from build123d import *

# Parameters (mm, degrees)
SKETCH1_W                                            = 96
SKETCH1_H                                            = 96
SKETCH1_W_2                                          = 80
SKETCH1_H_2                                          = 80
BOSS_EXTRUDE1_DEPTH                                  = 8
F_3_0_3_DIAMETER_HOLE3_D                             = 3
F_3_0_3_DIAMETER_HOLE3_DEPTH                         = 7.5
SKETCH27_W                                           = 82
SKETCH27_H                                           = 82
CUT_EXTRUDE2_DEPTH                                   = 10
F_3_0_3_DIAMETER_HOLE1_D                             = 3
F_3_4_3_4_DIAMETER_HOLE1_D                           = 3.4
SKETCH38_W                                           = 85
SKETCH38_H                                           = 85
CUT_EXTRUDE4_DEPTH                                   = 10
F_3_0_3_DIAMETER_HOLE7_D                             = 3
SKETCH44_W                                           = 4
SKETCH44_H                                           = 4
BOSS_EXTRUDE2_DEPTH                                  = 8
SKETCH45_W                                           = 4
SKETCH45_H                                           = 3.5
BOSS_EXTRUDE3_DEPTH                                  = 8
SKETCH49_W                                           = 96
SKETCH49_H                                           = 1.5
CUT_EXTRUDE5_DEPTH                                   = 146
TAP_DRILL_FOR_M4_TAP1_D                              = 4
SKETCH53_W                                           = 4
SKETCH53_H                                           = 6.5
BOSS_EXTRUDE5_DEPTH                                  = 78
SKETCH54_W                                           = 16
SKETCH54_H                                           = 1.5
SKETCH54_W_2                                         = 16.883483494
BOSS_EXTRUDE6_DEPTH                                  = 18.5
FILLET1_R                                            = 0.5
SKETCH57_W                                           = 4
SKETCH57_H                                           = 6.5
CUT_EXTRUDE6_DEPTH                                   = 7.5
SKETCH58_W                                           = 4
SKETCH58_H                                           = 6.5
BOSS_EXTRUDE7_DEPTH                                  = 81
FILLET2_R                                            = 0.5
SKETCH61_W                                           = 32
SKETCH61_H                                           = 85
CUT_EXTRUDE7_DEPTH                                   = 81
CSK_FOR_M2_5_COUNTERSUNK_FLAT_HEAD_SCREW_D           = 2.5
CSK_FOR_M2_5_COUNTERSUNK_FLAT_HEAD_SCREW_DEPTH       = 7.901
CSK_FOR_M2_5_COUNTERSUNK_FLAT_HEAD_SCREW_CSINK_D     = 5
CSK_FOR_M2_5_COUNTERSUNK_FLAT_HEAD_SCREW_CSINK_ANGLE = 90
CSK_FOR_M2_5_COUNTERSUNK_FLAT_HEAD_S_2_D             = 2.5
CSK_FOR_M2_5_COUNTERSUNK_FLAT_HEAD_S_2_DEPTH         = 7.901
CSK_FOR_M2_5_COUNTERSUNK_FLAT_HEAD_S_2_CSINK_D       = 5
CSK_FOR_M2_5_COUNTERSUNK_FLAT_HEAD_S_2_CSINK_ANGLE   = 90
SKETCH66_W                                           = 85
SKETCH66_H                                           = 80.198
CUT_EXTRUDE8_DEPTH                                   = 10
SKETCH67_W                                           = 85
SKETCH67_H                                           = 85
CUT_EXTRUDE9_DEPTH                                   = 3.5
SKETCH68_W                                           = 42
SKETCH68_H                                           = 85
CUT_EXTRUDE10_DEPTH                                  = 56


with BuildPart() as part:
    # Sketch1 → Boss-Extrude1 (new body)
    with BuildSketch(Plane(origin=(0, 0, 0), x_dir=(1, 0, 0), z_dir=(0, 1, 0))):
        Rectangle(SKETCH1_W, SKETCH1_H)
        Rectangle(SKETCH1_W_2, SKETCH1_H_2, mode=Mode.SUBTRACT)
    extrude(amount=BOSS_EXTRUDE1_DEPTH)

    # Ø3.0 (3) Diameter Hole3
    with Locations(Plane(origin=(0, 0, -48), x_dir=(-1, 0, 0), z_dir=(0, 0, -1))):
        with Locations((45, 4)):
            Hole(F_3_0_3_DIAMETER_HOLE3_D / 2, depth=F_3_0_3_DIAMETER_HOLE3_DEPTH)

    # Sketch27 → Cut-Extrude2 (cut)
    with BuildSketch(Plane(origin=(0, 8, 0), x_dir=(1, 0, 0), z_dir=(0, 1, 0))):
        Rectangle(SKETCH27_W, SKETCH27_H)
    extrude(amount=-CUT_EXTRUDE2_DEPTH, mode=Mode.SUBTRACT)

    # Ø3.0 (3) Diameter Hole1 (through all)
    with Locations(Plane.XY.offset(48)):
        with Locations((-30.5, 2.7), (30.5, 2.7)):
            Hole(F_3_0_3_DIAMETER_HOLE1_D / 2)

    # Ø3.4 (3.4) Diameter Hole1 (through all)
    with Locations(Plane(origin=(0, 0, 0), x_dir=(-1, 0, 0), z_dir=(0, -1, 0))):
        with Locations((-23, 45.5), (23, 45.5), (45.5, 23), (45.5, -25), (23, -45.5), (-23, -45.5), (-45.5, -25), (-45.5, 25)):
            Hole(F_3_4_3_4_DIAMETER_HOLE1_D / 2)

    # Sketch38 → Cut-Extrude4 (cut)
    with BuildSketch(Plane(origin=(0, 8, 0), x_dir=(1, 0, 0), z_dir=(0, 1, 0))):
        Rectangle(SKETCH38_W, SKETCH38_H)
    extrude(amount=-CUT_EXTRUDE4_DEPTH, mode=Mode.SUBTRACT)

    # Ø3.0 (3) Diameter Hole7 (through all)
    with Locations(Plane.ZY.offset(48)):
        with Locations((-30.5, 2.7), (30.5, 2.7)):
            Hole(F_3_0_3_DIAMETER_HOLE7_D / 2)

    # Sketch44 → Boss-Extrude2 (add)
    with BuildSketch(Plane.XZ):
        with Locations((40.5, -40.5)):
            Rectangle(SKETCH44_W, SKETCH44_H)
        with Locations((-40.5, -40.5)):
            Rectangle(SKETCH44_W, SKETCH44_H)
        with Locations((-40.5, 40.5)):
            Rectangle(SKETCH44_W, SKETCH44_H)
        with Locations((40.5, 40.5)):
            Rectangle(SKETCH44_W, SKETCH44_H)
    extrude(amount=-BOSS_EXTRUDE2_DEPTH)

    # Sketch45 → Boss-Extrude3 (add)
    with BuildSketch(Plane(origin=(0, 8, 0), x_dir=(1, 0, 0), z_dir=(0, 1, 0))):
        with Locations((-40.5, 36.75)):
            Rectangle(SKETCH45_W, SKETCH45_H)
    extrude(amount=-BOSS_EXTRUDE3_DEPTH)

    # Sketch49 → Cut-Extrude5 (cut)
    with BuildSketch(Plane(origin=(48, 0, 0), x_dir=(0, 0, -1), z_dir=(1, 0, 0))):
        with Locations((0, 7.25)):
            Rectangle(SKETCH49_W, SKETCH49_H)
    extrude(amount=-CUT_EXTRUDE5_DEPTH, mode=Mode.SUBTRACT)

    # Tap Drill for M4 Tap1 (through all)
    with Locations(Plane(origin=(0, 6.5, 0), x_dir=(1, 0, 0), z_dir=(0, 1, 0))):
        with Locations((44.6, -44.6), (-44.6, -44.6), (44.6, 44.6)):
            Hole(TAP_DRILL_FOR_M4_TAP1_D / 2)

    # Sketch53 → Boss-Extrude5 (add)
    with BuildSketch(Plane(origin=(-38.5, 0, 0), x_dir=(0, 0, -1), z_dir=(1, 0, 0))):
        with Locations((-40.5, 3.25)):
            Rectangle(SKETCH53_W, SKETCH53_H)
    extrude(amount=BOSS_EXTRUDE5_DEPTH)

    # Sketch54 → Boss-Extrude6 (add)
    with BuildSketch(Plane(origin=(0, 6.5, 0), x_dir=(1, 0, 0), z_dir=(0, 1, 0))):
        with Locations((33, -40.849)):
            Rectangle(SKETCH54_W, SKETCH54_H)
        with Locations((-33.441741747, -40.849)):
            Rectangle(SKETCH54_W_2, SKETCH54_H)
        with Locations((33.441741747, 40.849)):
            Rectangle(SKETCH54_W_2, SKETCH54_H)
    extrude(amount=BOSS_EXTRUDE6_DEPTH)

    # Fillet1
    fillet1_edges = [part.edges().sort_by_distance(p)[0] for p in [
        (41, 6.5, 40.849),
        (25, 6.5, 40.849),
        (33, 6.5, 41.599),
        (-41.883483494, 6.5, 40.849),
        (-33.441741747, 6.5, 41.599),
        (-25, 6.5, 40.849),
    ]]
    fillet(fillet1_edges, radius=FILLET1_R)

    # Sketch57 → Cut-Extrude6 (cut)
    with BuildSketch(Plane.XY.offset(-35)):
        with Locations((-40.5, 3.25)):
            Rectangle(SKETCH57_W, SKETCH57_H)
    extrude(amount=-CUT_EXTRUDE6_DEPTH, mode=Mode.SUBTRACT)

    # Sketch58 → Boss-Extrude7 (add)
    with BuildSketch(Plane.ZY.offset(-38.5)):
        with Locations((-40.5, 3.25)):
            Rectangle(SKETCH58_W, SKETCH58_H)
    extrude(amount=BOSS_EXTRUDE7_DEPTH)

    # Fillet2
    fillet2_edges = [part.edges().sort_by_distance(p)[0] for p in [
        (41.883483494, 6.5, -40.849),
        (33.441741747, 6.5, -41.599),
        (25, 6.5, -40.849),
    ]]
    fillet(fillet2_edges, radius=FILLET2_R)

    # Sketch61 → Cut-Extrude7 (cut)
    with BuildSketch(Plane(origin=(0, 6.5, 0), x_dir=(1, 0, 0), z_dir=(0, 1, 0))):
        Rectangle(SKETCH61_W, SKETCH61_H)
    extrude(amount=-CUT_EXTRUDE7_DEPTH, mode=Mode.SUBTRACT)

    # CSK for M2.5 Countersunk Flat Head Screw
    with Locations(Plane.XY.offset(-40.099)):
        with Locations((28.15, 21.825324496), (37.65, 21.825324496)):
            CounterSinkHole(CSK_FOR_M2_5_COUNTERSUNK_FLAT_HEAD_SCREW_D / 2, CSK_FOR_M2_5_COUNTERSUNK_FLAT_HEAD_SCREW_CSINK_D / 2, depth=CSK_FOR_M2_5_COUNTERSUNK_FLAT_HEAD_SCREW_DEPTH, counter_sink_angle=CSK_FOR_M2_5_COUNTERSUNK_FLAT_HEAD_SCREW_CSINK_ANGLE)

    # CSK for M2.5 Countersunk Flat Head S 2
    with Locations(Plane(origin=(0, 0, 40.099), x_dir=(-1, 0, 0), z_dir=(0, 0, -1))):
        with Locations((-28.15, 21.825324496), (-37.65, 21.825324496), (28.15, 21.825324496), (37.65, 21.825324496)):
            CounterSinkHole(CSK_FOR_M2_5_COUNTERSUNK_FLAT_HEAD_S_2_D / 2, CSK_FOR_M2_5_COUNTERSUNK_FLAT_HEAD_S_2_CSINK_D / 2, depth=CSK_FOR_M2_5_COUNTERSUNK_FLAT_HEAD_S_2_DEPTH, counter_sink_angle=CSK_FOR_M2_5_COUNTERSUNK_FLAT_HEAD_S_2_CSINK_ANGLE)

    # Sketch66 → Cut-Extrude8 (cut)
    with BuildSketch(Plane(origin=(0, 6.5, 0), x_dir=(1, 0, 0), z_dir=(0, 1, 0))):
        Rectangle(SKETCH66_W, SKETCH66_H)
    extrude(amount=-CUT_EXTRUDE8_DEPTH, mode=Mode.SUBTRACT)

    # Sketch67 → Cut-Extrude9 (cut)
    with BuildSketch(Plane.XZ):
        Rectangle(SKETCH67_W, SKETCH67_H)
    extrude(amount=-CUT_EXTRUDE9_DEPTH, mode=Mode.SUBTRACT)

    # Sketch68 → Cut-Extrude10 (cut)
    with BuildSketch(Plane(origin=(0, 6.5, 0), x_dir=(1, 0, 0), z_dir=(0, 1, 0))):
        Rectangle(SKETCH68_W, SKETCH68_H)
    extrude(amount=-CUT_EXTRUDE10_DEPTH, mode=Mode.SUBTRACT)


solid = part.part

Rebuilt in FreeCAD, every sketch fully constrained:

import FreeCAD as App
import Part
import Sketcher

V = App.Vector


def edges_at(feature, points):
    """Names of the edges that pass closest to the given points."""
    edges = feature.Shape.Edges
    near = lambda p: min(range(len(edges)), key=lambda i: edges[i].distToShape(Part.Vertex(*p))[0])
    return sorted({f"Edge{near(p) + 1}" for p in points})

doc = App.newDocument("Part")
params = doc.addObject("Spreadsheet::Sheet", "Params")
for row, (alias, value) in enumerate([
    ("sketch1_width", "96 mm"),
    ("sketch1_width2", "80 mm"),
    ("pad1_length", "8 mm"),
    ("sketch2_diameter", "3 mm"),
    ("hole_diameter", "3 mm"),
    ("hole_depth", "7.5 mm"),
    ("sketch3_width", "82 mm"),
    ("pocket1_length", "10 mm"),
    ("sketch4_diameter", "3 mm"),
    ("hole2_diameter", "3 mm"),
    ("sketch5_diameter", "3.4 mm"),
    ("hole3_diameter", "3.4 mm"),
    ("sketch6_width", "85 mm"),
    ("pocket2_length", "10 mm"),
    ("sketch7_diameter", "3 mm"),
    ("hole4_diameter", "3 mm"),
    ("sketch8_width", "4 mm"),
    ("pad2_length", "8 mm"),
    ("sketch9_width", "4 mm"),
    ("sketch9_height", "3.5 mm"),
    ("pad3_length", "8 mm"),
    ("sketch10_height", "96 mm"),
    ("sketch10_width", "1.5 mm"),
    ("pocket3_length", "146 mm"),
    ("sketch11_diameter", "4 mm"),
    ("hole5_diameter", "4 mm"),
    ("sketch12_height", "4 mm"),
    ("sketch12_width", "6.5 mm"),
    ("pad4_length", "78 mm"),
    ("sketch13_width", "16 mm"),
    ("sketch13_height", "1.5 mm"),
    ("pad5_length", "18.5 mm"),
    ("fillet_radius", "0.5 mm"),
    ("sketch14_width", "4 mm"),
    ("sketch14_height", "6.5 mm"),
    ("pocket4_length", "7.5 mm"),
    ("sketch15_height", "4 mm"),
    ("sketch15_width", "6.5 mm"),
    ("pad6_length", "81 mm"),
    ("fillet2_radius", "0.5 mm"),
    ("sketch16_width", "32 mm"),
    ("sketch16_height", "85 mm"),
    ("pocket5_length", "81 mm"),
    ("sketch17_diameter", "2.5 mm"),
    ("hole6_diameter", "2.5 mm"),
    ("hole6_depth", "7.901 mm"),
    ("hole6_csink_diameter", "5 mm"),
    ("sketch18_diameter", "2.5 mm"),
    ("hole7_diameter", "2.5 mm"),
    ("hole7_depth", "7.901 mm"),
    ("hole7_csink_diameter", "5 mm"),
    ("sketch19_width", "85 mm"),
    ("pocket6_length", "10 mm"),
    ("sketch20_width", "85 mm"),
    ("pocket7_length", "3.5 mm"),
    ("sketch21_width", "42 mm"),
    ("sketch21_height", "85 mm"),
    ("pocket8_length", "56 mm"),
], start=1):
    params.set(f"A{row}", alias)
    params.set(f"B{row}", "=" + value)
    params.setAlias(f"B{row}", alias)

body = doc.addObject("PartDesign::Body", "Body")

sketch1 = body.newObject("Sketcher::SketchObject", "Sketch")
sketch1.AttachmentSupport = (doc.getObject("XZ_Plane"), [""])
sketch1.MapMode = "FlatFace"
sketch1.addGeometry([
    Part.LineSegment(V(-48, -48, 0), V(-48, 48, 0)),
    Part.LineSegment(V(-48, 48, 0), V(48, 48, 0)),
    Part.LineSegment(V(48, 48, 0), V(48, -48, 0)),
    Part.LineSegment(V(48, -48, 0), V(-48, -48, 0)),
    Part.LineSegment(V(40, 40, 0), V(-40, 40, 0)),
    Part.LineSegment(V(-40, 40, 0), V(-40, -40, 0)),
    Part.LineSegment(V(-40, -40, 0), V(40, -40, 0)),
    Part.LineSegment(V(40, -40, 0), V(40, 40, 0)),
], False)
sketch1.addConstraint([
    Sketcher.Constraint("Coincident", 0, 2, 1, 1),
    Sketcher.Constraint("Coincident", 1, 2, 2, 1),
    Sketcher.Constraint("Coincident", 2, 2, 3, 1),
    Sketcher.Constraint("Coincident", 3, 2, 0, 1),
    Sketcher.Constraint("Coincident", 4, 2, 5, 1),
    Sketcher.Constraint("Coincident", 5, 2, 6, 1),
    Sketcher.Constraint("Coincident", 6, 2, 7, 1),
    Sketcher.Constraint("Coincident", 7, 2, 4, 1),
    Sketcher.Constraint("Vertical", 0),
    Sketcher.Constraint("Horizontal", 1),
    Sketcher.Constraint("Vertical", 2),
    Sketcher.Constraint("Horizontal", 3),
    Sketcher.Constraint("Horizontal", 4),
    Sketcher.Constraint("Vertical", 5),
    Sketcher.Constraint("Horizontal", 6),
    Sketcher.Constraint("Vertical", 7),
    Sketcher.Constraint("Symmetric", 0, 2, 2, 2, -1, 1),
    Sketcher.Constraint("Symmetric", 4, 2, 6, 2, -1, 1),
    Sketcher.Constraint("Equal", 3, 0),
    Sketcher.Constraint("Equal", 6, 5),
    Sketcher.Constraint("DistanceX", 1, 1, 1, 2, 96.0),
    Sketcher.Constraint("DistanceX", 4, 2, 4, 1, 80.0),
])
sketch1.setExpression("Constraints[20]", "Params.sketch1_width")
sketch1.setExpression("Constraints[21]", "Params.sketch1_width2")
pad1 = body.newObject("PartDesign::Pad", "Pad")
pad1.Profile = sketch1
pad1.setExpression("Length", "Params.pad1_length")
pad1.Reversed = True

sketch2 = body.newObject("Sketcher::SketchObject", "Sketch001")
sketch2.AttachmentSupport = (doc.getObject("XY_Plane"), [""])
sketch2.MapMode = "FlatFace"
sketch2.AttachmentOffset = App.Placement(V(0, 0, -48), App.Rotation())
sketch2.addGeometry(Part.Circle(V(-45, 4, 0), V(0, 0, 1), 1.5), False)
sketch2.addConstraint([
    Sketcher.Constraint("Diameter", 0, 3.0),
    Sketcher.Constraint("DistanceX", 0, 3, -1, 1, 45.0),
    Sketcher.Constraint("DistanceY", -1, 1, 0, 3, 4.0),
])
sketch2.setExpression("Constraints[0]", "Params.sketch2_diameter")
doc.recompute()
hole = body.newObject("PartDesign::Hole", "Hole")
hole.Profile = sketch2
hole.ThreadType = "None"
hole.setExpression("Diameter", "Params.hole_diameter")
hole.DepthType = "Dimension"
hole.setExpression("Depth", "Params.hole_depth")
hole.DrillPoint = "Flat"
hole.Reversed = True

sketch3 = body.newObject("Sketcher::SketchObject", "Sketch002")
sketch3.AttachmentSupport = (doc.getObject("XZ_Plane"), [""])
sketch3.MapMode = "FlatFace"
sketch3.AttachmentOffset = App.Placement(V(0, 0, -8), App.Rotation())
sketch3.addGeometry([
    Part.LineSegment(V(-41, -41, 0), V(-41, 41, 0)),
    Part.LineSegment(V(-41, 41, 0), V(41, 41, 0)),
    Part.LineSegment(V(41, 41, 0), V(41, -41, 0)),
    Part.LineSegment(V(41, -41, 0), V(-41, -41, 0)),
], False)
sketch3.addConstraint([
    Sketcher.Constraint("Coincident", 0, 2, 1, 1),
    Sketcher.Constraint("Coincident", 1, 2, 2, 1),
    Sketcher.Constraint("Coincident", 2, 2, 3, 1),
    Sketcher.Constraint("Coincident", 3, 2, 0, 1),
    Sketcher.Constraint("Vertical", 0),
    Sketcher.Constraint("Horizontal", 1),
    Sketcher.Constraint("Vertical", 2),
    Sketcher.Constraint("Horizontal", 3),
    Sketcher.Constraint("Symmetric", 0, 2, 2, 2, -1, 1),
    Sketcher.Constraint("Equal", 3, 0),
    Sketcher.Constraint("DistanceX", 1, 1, 1, 2, 82.0),
])
sketch3.setExpression("Constraints[10]", "Params.sketch3_width")
pocket1 = body.newObject("PartDesign::Pocket", "Pocket")
pocket1.Profile = sketch3
pocket1.setExpression("Length", "Params.pocket1_length")
pocket1.Reversed = True

sketch4 = body.newObject("Sketcher::SketchObject", "Sketch003")
sketch4.AttachmentSupport = (doc.getObject("XY_Plane"), [""])
sketch4.MapMode = "FlatFace"
sketch4.AttachmentOffset = App.Placement(V(0, 0, 48), App.Rotation())
sketch4.addGeometry([
    Part.Circle(V(-30.5, 2.7, 0), V(0, 0, 1), 1.5),
    Part.Circle(V(30.5, 2.7, 0), V(0, 0, 1), 1.5),
], False)
sketch4.addConstraint([
    Sketcher.Constraint("Equal", 0, 1),
    Sketcher.Constraint("Symmetric", 0, 3, 1, 3, -2),
    Sketcher.Constraint("Diameter", 0, 3.0),
    Sketcher.Constraint("DistanceX", 0, 3, 1, 3, 61.0),
    Sketcher.Constraint("DistanceY", -1, 1, 0, 3, 2.7),
])
sketch4.setExpression("Constraints[2]", "Params.sketch4_diameter")
doc.recompute()
hole2 = body.newObject("PartDesign::Hole", "Hole001")
hole2.Profile = sketch4
hole2.ThreadType = "None"
hole2.setExpression("Diameter", "Params.hole2_diameter")
hole2.DepthType = "ThroughAll"

sketch5 = body.newObject("Sketcher::SketchObject", "Sketch004")
sketch5.AttachmentSupport = (doc.getObject("XZ_Plane"), [""])
sketch5.MapMode = "FlatFace"
sketch5.addGeometry([
    Part.Circle(V(23, -45.5, 0), V(0, 0, 1), 1.7),
    Part.Circle(V(-23, -45.5, 0), V(0, 0, 1), 1.7),
    Part.Circle(V(-45.5, -23, 0), V(0, 0, 1), 1.7),
    Part.Circle(V(-45.5, 25, 0), V(0, 0, 1), 1.7),
    Part.Circle(V(-23, 45.5, 0), V(0, 0, 1), 1.7),
    Part.Circle(V(23, 45.5, 0), V(0, 0, 1), 1.7),
    Part.Circle(V(45.5, 25, 0), V(0, 0, 1), 1.7),
    Part.Circle(V(45.5, -25, 0), V(0, 0, 1), 1.7),
], False)
sketch5.addConstraint([
    Sketcher.Constraint("Equal", 0, 1),
    Sketcher.Constraint("Equal", 1, 2),
    Sketcher.Constraint("Equal", 2, 3),
    Sketcher.Constraint("Equal", 3, 4),
    Sketcher.Constraint("Equal", 4, 5),
    Sketcher.Constraint("Equal", 5, 6),
    Sketcher.Constraint("Equal", 6, 7),
    Sketcher.Constraint("Symmetric", 0, 3, 4, 3, -1, 1),
    Sketcher.Constraint("Symmetric", 1, 3, 5, 3, -1, 1),
    Sketcher.Constraint("Symmetric", 3, 3, 7, 3, -1, 1),
    Sketcher.Constraint("Symmetric", 0, 3, 1, 3, -2),
    Sketcher.Constraint("Symmetric", 3, 3, 6, 3, -2),
    Sketcher.Constraint("Vertical", 2, 3, 3, 3),
    Sketcher.Constraint("Diameter", 0, 3.4),
    Sketcher.Constraint("DistanceX", -1, 1, 0, 3, 23.0),
    Sketcher.Constraint("DistanceY", 2, 3, -1, 1, 23.0),
    Sketcher.Constraint("DistanceY", -1, 1, 3, 3, 25.0),
    Sketcher.Constraint("DistanceY", 1, 3, 4, 3, 91.0),
    Sketcher.Constraint("DistanceX", 3, 3, 6, 3, 91.0),
])
sketch5.setExpression("Constraints[13]", "Params.sketch5_diameter")
doc.recompute()
hole3 = body.newObject("PartDesign::Hole", "Hole002")
hole3.Profile = sketch5
hole3.ThreadType = "None"
hole3.setExpression("Diameter", "Params.hole3_diameter")
hole3.DepthType = "ThroughAll"

sketch6 = body.newObject("Sketcher::SketchObject", "Sketch005")
sketch6.AttachmentSupport = (doc.getObject("XZ_Plane"), [""])
sketch6.MapMode = "FlatFace"
sketch6.AttachmentOffset = App.Placement(V(0, 0, -8), App.Rotation())
sketch6.addGeometry([
    Part.LineSegment(V(-42, -42, 0), V(-42, 42, 0)),
    Part.LineSegment(V(-42, 42, 0), V(42, 42, 0)),
    Part.LineSegment(V(42, 42, 0), V(42, -42, 0)),
    Part.LineSegment(V(42, -42, 0), V(-42, -42, 0)),
], False)
sketch6.addConstraint([
    Sketcher.Constraint("Coincident", 0, 2, 1, 1),
    Sketcher.Constraint("Coincident", 1, 2, 2, 1),
    Sketcher.Constraint("Coincident", 2, 2, 3, 1),
    Sketcher.Constraint("Coincident", 3, 2, 0, 1),
    Sketcher.Constraint("Vertical", 0),
    Sketcher.Constraint("Horizontal", 1),
    Sketcher.Constraint("Vertical", 2),
    Sketcher.Constraint("Horizontal", 3),
    Sketcher.Constraint("Symmetric", 0, 2, 2, 2, -1, 1),
    Sketcher.Constraint("Equal", 3, 0),
    Sketcher.Constraint("DistanceX", 1, 1, 1, 2, 85.0),
])
sketch6.setExpression("Constraints[10]", "Params.sketch6_width")
pocket2 = body.newObject("PartDesign::Pocket", "Pocket001")
pocket2.Profile = sketch6
pocket2.setExpression("Length", "Params.pocket2_length")
pocket2.Reversed = True

sketch7 = body.newObject("Sketcher::SketchObject", "Sketch006")
sketch7.AttachmentSupport = (doc.getObject("YZ_Plane"), [""])
sketch7.MapMode = "FlatFace"
sketch7.AttachmentOffset = App.Placement(V(0, 0, -48), App.Rotation())
sketch7.addGeometry([
    Part.Circle(V(2.7, -30.5, 0), V(0, 0, 1), 1.5),
    Part.Circle(V(2.7, 30.5, 0), V(0, 0, 1), 1.5),
], False)
sketch7.addConstraint([
    Sketcher.Constraint("Equal", 0, 1),
    Sketcher.Constraint("Symmetric", 0, 3, 1, 3, -1),
    Sketcher.Constraint("Diameter", 0, 3.0),
    Sketcher.Constraint("DistanceY", 0, 3, 1, 3, 61.0),
    Sketcher.Constraint("DistanceX", -1, 1, 0, 3, 2.7),
])
sketch7.setExpression("Constraints[2]", "Params.sketch7_diameter")
doc.recompute()
hole4 = body.newObject("PartDesign::Hole", "Hole003")
hole4.Profile = sketch7
hole4.ThreadType = "None"
hole4.setExpression("Diameter", "Params.hole4_diameter")
hole4.DepthType = "ThroughAll"
hole4.Reversed = True

sketch8 = body.newObject("Sketcher::SketchObject", "Sketch007")
sketch8.AttachmentSupport = (doc.getObject("XZ_Plane"), [""])
sketch8.MapMode = "FlatFace"
sketch8.addGeometry([
    Part.LineSegment(V(38.5, -38.5, 0), V(38.5, -42.5, 0)),
    Part.LineSegment(V(38.5, -42.5, 0), V(42.5, -42.5, 0)),
    Part.LineSegment(V(42.5, -42.5, 0), V(42.5, -38.5, 0)),
    Part.LineSegment(V(42.5, -38.5, 0), V(38.5, -38.5, 0)),
    Part.LineSegment(V(-42.5, -38.5, 0), V(-42.5, -42.5, 0)),
    Part.LineSegment(V(-42.5, -42.5, 0), V(-38.5, -42.5, 0)),
    Part.LineSegment(V(-38.5, -42.5, 0), V(-38.5, -38.5, 0)),
    Part.LineSegment(V(-38.5, -38.5, 0), V(-42.5, -38.5, 0)),
    Part.LineSegment(V(-42.5, 42.5, 0), V(-42.5, 38.5, 0)),
    Part.LineSegment(V(-42.5, 38.5, 0), V(-38.5, 38.5, 0)),
    Part.LineSegment(V(-38.5, 38.5, 0), V(-38.5, 42.5, 0)),
    Part.LineSegment(V(-38.5, 42.5, 0), V(-42.5, 42.5, 0)),
    Part.LineSegment(V(38.5, 42.5, 0), V(38.5, 38.5, 0)),
    Part.LineSegment(V(38.5, 38.5, 0), V(42.5, 38.5, 0)),
    Part.LineSegment(V(42.5, 38.5, 0), V(42.5, 42.5, 0)),
    Part.LineSegment(V(42.5, 42.5, 0), V(38.5, 42.5, 0)),
], False)
sketch8.addConstraint([
    Sketcher.Constraint("Coincident", 0, 2, 1, 1),
    Sketcher.Constraint("Coincident", 1, 2, 2, 1),
    Sketcher.Constraint("Coincident", 2, 2, 3, 1),
    Sketcher.Constraint("Coincident", 3, 2, 0, 1),
    Sketcher.Constraint("Coincident", 4, 2, 5, 1),
    Sketcher.Constraint("Coincident", 5, 2, 6, 1),
    Sketcher.Constraint("Coincident", 6, 2, 7, 1),
    Sketcher.Constraint("Coincident", 7, 2, 4, 1),
    Sketcher.Constraint("Coincident", 8, 2, 9, 1),
    Sketcher.Constraint("Coincident", 9, 2, 10, 1),
    Sketcher.Constraint("Coincident", 10, 2, 11, 1),
    Sketcher.Constraint("Coincident", 11, 2, 8, 1),
    Sketcher.Constraint("Coincident", 12, 2, 13, 1),
    Sketcher.Constraint("Coincident", 13, 2, 14, 1),
    Sketcher.Constraint("Coincident", 14, 2, 15, 1),
    Sketcher.Constraint("Coincident", 15, 2, 12, 1),
    Sketcher.Constraint("Vertical", 0),
    Sketcher.Constraint("Horizontal", 1),
    Sketcher.Constraint("Vertical", 2),
    Sketcher.Constraint("Horizontal", 3),
    Sketcher.Constraint("Vertical", 4),
    Sketcher.Constraint("Horizontal", 5),
    Sketcher.Constraint("Vertical", 6),
    Sketcher.Constraint("Horizontal", 7),
    Sketcher.Constraint("Vertical", 8),
    Sketcher.Constraint("Horizontal", 9),
    Sketcher.Constraint("Vertical", 10),
    Sketcher.Constraint("Horizontal", 11),
    Sketcher.Constraint("Vertical", 12),
    Sketcher.Constraint("Horizontal", 13),
    Sketcher.Constraint("Vertical", 14),
    Sketcher.Constraint("Horizontal", 15),
    Sketcher.Constraint("Symmetric", 2, 2, 8, 2, -1, 1),
    Sketcher.Constraint("Symmetric", 0, 2, 10, 2, -1, 1),
    Sketcher.Constraint("Symmetric", 6, 2, 12, 2, -1, 1),
    Sketcher.Constraint("Symmetric", 4, 2, 14, 2, -1, 1),
    Sketcher.Constraint("Symmetric", 1, 2, 4, 2, -2),
    Sketcher.Constraint("Symmetric", 3, 2, 6, 2, -2),
    Sketcher.Constraint("Equal", 15, 0),
    Sketcher.Constraint("DistanceX", 1, 1, 1, 2, 4.0),
    Sketcher.Constraint("DistanceX", 4, 2, 0, 2, 81.0),
    Sketcher.Constraint("DistanceY", 7, 2, 8, 2, 77.0),
])
sketch8.setExpression("Constraints[39]", "Params.sketch8_width")
pad2 = body.newObject("PartDesign::Pad", "Pad001")
pad2.Profile = sketch8
pad2.setExpression("Length", "Params.pad2_length")
pad2.Reversed = True

sketch9 = body.newObject("Sketcher::SketchObject", "Sketch008")
sketch9.AttachmentSupport = (doc.getObject("XZ_Plane"), [""])
sketch9.MapMode = "FlatFace"
sketch9.AttachmentOffset = App.Placement(V(0, 0, -8), App.Rotation())
sketch9.addGeometry([
    Part.LineSegment(V(-42.5, -38.5, 0), V(-42.5, -35, 0)),
    Part.LineSegment(V(-42.5, -35, 0), V(-38.5, -35, 0)),
    Part.LineSegment(V(-38.5, -35, 0), V(-38.5, -38.5, 0)),
    Part.LineSegment(V(-38.5, -38.5, 0), V(-42.5, -38.5, 0)),
], False)
sketch9.addConstraint([
    Sketcher.Constraint("Coincident", 0, 2, 1, 1),
    Sketcher.Constraint("Coincident", 1, 2, 2, 1),
    Sketcher.Constraint("Coincident", 2, 2, 3, 1),
    Sketcher.Constraint("Coincident", 3, 2, 0, 1),
    Sketcher.Constraint("Vertical", 0),
    Sketcher.Constraint("Horizontal", 1),
    Sketcher.Constraint("Vertical", 2),
    Sketcher.Constraint("Horizontal", 3),
    Sketcher.Constraint("DistanceX", 1, 1, 1, 2, 4.0),
    Sketcher.Constraint("DistanceY", 0, 1, 0, 2, 3.5),
    Sketcher.Constraint("DistanceY", 0, 2, -1, 1, 35.0),
    Sketcher.Constraint("DistanceX", 0, 2, -1, 1, 42.5),
])
sketch9.setExpression("Constraints[8]", "Params.sketch9_width")
sketch9.setExpression("Constraints[9]", "Params.sketch9_height")
pad3 = body.newObject("PartDesign::Pad", "Pad002")
pad3.Profile = sketch9
pad3.setExpression("Length", "Params.pad3_length")

sketch10 = body.newObject("Sketcher::SketchObject", "Sketch009")
sketch10.AttachmentSupport = (doc.getObject("YZ_Plane"), [""])
sketch10.MapMode = "FlatFace"
sketch10.AttachmentOffset = App.Placement(V(0, 0, 48), App.Rotation())
sketch10.addGeometry([
    Part.LineSegment(V(8, 48, 0), V(6.5, 48, 0)),
    Part.LineSegment(V(6.5, 48, 0), V(6.5, -48, 0)),
    Part.LineSegment(V(6.5, -48, 0), V(8, -48, 0)),
    Part.LineSegment(V(8, -48, 0), V(8, 48, 0)),
], False)
sketch10.addConstraint([
    Sketcher.Constraint("Coincident", 0, 2, 1, 1),
    Sketcher.Constraint("Coincident", 1, 2, 2, 1),
    Sketcher.Constraint("Coincident", 2, 2, 3, 1),
    Sketcher.Constraint("Coincident", 3, 2, 0, 1),
    Sketcher.Constraint("Horizontal", 0),
    Sketcher.Constraint("Vertical", 1),
    Sketcher.Constraint("Horizontal", 2),
    Sketcher.Constraint("Vertical", 3),
    Sketcher.Constraint("DistanceY", 1, 2, 1, 1, 96.0),
    Sketcher.Constraint("DistanceX", 0, 2, 0, 1, 1.5),
    Sketcher.Constraint("DistanceY", -1, 1, 0, 2, 48.0),
    Sketcher.Constraint("DistanceX", -1, 1, 2, 2, 8.0),
])
sketch10.setExpression("Constraints[8]", "Params.sketch10_height")
sketch10.setExpression("Constraints[9]", "Params.sketch10_width")
pocket3 = body.newObject("PartDesign::Pocket", "Pocket002")
pocket3.Profile = sketch10
pocket3.setExpression("Length", "Params.pocket3_length")

sketch11 = body.newObject("Sketcher::SketchObject", "Sketch010")
sketch11.AttachmentSupport = (doc.getObject("XZ_Plane"), [""])
sketch11.MapMode = "FlatFace"
sketch11.AttachmentOffset = App.Placement(V(0, 0, -6.5), App.Rotation())
sketch11.addGeometry([
    Part.Circle(V(44.6, 44.6, 0), V(0, 0, 1), 2),
    Part.Circle(V(-44.6, 44.6, 0), V(0, 0, 1), 2),
    Part.Circle(V(44.6, -44.6, 0), V(0, 0, 1), 2),
], False)
sketch11.addConstraint([
    Sketcher.Constraint("Equal", 0, 1),
    Sketcher.Constraint("Equal", 1, 2),
    Sketcher.Constraint("Symmetric", 1, 3, 2, 3, -1, 1),
    Sketcher.Constraint("Symmetric", 0, 3, 1, 3, -2),
    Sketcher.Constraint("Diameter", 0, 4.0),
    Sketcher.Constraint("DistanceX", -1, 1, 0, 3, 44.6),
    Sketcher.Constraint("DistanceY", -1, 1, 0, 3, 44.6),
])
sketch11.setExpression("Constraints[4]", "Params.sketch11_diameter")
doc.recompute()
hole5 = body.newObject("PartDesign::Hole", "Hole004")
hole5.Profile = sketch11
hole5.ThreadType = "None"
hole5.setExpression("Diameter", "Params.hole5_diameter")
hole5.DepthType = "ThroughAll"
hole5.Reversed = True

sketch12 = body.newObject("Sketcher::SketchObject", "Sketch011")
sketch12.AttachmentSupport = (doc.getObject("YZ_Plane"), [""])
sketch12.MapMode = "FlatFace"
sketch12.AttachmentOffset = App.Placement(V(0, 0, -38.5), App.Rotation())
sketch12.addGeometry([
    Part.LineSegment(V(6.5, 42.5, 0), V(0, 42.5, 0)),
    Part.LineSegment(V(0, 42.5, 0), V(0, 38.5, 0)),
    Part.LineSegment(V(0, 38.5, 0), V(6.5, 38.5, 0)),
    Part.LineSegment(V(6.5, 38.5, 0), V(6.5, 42.5, 0)),
], False)
sketch12.addConstraint([
    Sketcher.Constraint("Coincident", 0, 2, 1, 1),
    Sketcher.Constraint("Coincident", 1, 2, 2, 1),
    Sketcher.Constraint("Coincident", 2, 2, 3, 1),
    Sketcher.Constraint("Coincident", 3, 2, 0, 1),
    Sketcher.Constraint("Horizontal", 0),
    Sketcher.Constraint("Vertical", 1),
    Sketcher.Constraint("Horizontal", 2),
    Sketcher.Constraint("Vertical", 3),
    Sketcher.Constraint("PointOnObject", 0, 2, -2),
    Sketcher.Constraint("DistanceY", 1, 2, 1, 1, 4.0),
    Sketcher.Constraint("DistanceX", 0, 2, 0, 1, 6.5),
    Sketcher.Constraint("DistanceY", -1, 1, 0, 2, 42.5),
])
sketch12.setExpression("Constraints[9]", "Params.sketch12_height")
sketch12.setExpression("Constraints[10]", "Params.sketch12_width")
pad4 = body.newObject("PartDesign::Pad", "Pad003")
pad4.Profile = sketch12
pad4.setExpression("Length", "Params.pad4_length")

sketch13 = body.newObject("Sketcher::SketchObject", "Sketch012")
sketch13.AttachmentSupport = (doc.getObject("XZ_Plane"), [""])
sketch13.MapMode = "FlatFace"
sketch13.AttachmentOffset = App.Placement(V(0, 0, -6.5), App.Rotation())
sketch13.addGeometry([
    Part.LineSegment(V(25, 40.1, 0), V(25, 41.6, 0)),
    Part.LineSegment(V(25, 41.6, 0), V(41, 41.6, 0)),
    Part.LineSegment(V(41, 41.6, 0), V(41, 40.1, 0)),
    Part.LineSegment(V(41, 40.1, 0), V(25, 40.1, 0)),
    Part.LineSegment(V(-41.9, 40.1, 0), V(-41.9, 41.6, 0)),
    Part.LineSegment(V(-41.9, 41.6, 0), V(-25, 41.6, 0)),
    Part.LineSegment(V(-25, 41.6, 0), V(-25, 40.1, 0)),
    Part.LineSegment(V(-25, 40.1, 0), V(-41.9, 40.1, 0)),
    Part.LineSegment(V(25, -41.6, 0), V(25, -40.1, 0)),
    Part.LineSegment(V(25, -40.1, 0), V(41.9, -40.1, 0)),
    Part.LineSegment(V(41.9, -40.1, 0), V(41.9, -41.6, 0)),
    Part.LineSegment(V(41.9, -41.6, 0), V(25, -41.6, 0)),
], False)
sketch13.addConstraint([
    Sketcher.Constraint("Coincident", 0, 2, 1, 1),
    Sketcher.Constraint("Coincident", 1, 2, 2, 1),
    Sketcher.Constraint("Coincident", 2, 2, 3, 1),
    Sketcher.Constraint("Coincident", 3, 2, 0, 1),
    Sketcher.Constraint("Coincident", 4, 2, 5, 1),
    Sketcher.Constraint("Coincident", 5, 2, 6, 1),
    Sketcher.Constraint("Coincident", 6, 2, 7, 1),
    Sketcher.Constraint("Coincident", 7, 2, 4, 1),
    Sketcher.Constraint("Coincident", 8, 2, 9, 1),
    Sketcher.Constraint("Coincident", 9, 2, 10, 1),
    Sketcher.Constraint("Coincident", 10, 2, 11, 1),
    Sketcher.Constraint("Coincident", 11, 2, 8, 1),
    Sketcher.Constraint("Vertical", 0),
    Sketcher.Constraint("Horizontal", 1),
    Sketcher.Constraint("Vertical", 2),
    Sketcher.Constraint("Horizontal", 3),
    Sketcher.Constraint("Vertical", 4),
    Sketcher.Constraint("Horizontal", 5),
    Sketcher.Constraint("Vertical", 6),
    Sketcher.Constraint("Horizontal", 7),
    Sketcher.Constraint("Vertical", 8),
    Sketcher.Constraint("Horizontal", 9),
    Sketcher.Constraint("Vertical", 10),
    Sketcher.Constraint("Horizontal", 11),
    Sketcher.Constraint("Symmetric", 6, 2, 8, 2, -1, 1),
    Sketcher.Constraint("Symmetric", 4, 2, 10, 2, -1, 1),
    Sketcher.Constraint("Symmetric", 0, 2, 5, 2, -2),
    Sketcher.Constraint("Horizontal", 3, 2, 6, 2),
    Sketcher.Constraint("DistanceX", 1, 1, 1, 2, 16.0),
    Sketcher.Constraint("DistanceY", 0, 1, 0, 2, 1.5),
    Sketcher.Constraint("DistanceX", -1, 1, 0, 2, 25.0),
    Sketcher.Constraint("DistanceY", -1, 1, 0, 2, 41.599),
    Sketcher.Constraint("DistanceX", 5, 1, 5, 2, 16.883483),
])
sketch13.setExpression("Constraints[28]", "Params.sketch13_width")
sketch13.setExpression("Constraints[29]", "Params.sketch13_height")
pad5 = body.newObject("PartDesign::Pad", "Pad004")
pad5.Profile = sketch13
pad5.setExpression("Length", "Params.pad5_length")
pad5.Reversed = True
doc.recompute()

fillet = body.newObject("PartDesign::Fillet", "Fillet")
fillet.Base = (pad5, edges_at(pad5, [
    (41, 6.5, 40.849),
    (25, 6.5, 40.849),
    (33, 6.5, 41.599),
    (-41.883, 6.5, 40.849),
    (-33.442, 6.5, 41.599),
    (-25, 6.5, 40.849),
]))
fillet.setExpression("Radius", "Params.fillet_radius")

sketch14 = body.newObject("Sketcher::SketchObject", "Sketch013")
sketch14.AttachmentSupport = (doc.getObject("XY_Plane"), [""])
sketch14.MapMode = "FlatFace"
sketch14.AttachmentOffset = App.Placement(V(0, 0, -35), App.Rotation())
sketch14.addGeometry([
    Part.LineSegment(V(-42.5, 6.5, 0), V(-42.5, 0, 0)),
    Part.LineSegment(V(-42.5, 0, 0), V(-38.5, 0, 0)),
    Part.LineSegment(V(-38.5, 0, 0), V(-38.5, 6.5, 0)),
    Part.LineSegment(V(-38.5, 6.5, 0), V(-42.5, 6.5, 0)),
], False)
sketch14.addConstraint([
    Sketcher.Constraint("Coincident", 0, 2, 1, 1),
    Sketcher.Constraint("Coincident", 1, 2, 2, 1),
    Sketcher.Constraint("Coincident", 2, 2, 3, 1),
    Sketcher.Constraint("Coincident", 3, 2, 0, 1),
    Sketcher.Constraint("Vertical", 0),
    Sketcher.Constraint("Horizontal", 1),
    Sketcher.Constraint("Vertical", 2),
    Sketcher.Constraint("Horizontal", 3),
    Sketcher.Constraint("PointOnObject", 0, 2, -1),
    Sketcher.Constraint("DistanceX", 1, 1, 1, 2, 4.0),
    Sketcher.Constraint("DistanceY", 0, 2, 0, 1, 6.5),
    Sketcher.Constraint("DistanceX", 0, 2, -1, 1, 42.5),
])
sketch14.setExpression("Constraints[9]", "Params.sketch14_width")
sketch14.setExpression("Constraints[10]", "Params.sketch14_height")
pocket4 = body.newObject("PartDesign::Pocket", "Pocket003")
pocket4.Profile = sketch14
pocket4.setExpression("Length", "Params.pocket4_length")

sketch15 = body.newObject("Sketcher::SketchObject", "Sketch014")
sketch15.AttachmentSupport = (doc.getObject("YZ_Plane"), [""])
sketch15.MapMode = "FlatFace"
sketch15.AttachmentOffset = App.Placement(V(0, 0, 38.5), App.Rotation())
sketch15.addGeometry([
    Part.LineSegment(V(6.5, -42.5, 0), V(0, -42.5, 0)),
    Part.LineSegment(V(0, -42.5, 0), V(0, -38.5, 0)),
    Part.LineSegment(V(0, -38.5, 0), V(6.5, -38.5, 0)),
    Part.LineSegment(V(6.5, -38.5, 0), V(6.5, -42.5, 0)),
], False)
sketch15.addConstraint([
    Sketcher.Constraint("Coincident", 0, 2, 1, 1),
    Sketcher.Constraint("Coincident", 1, 2, 2, 1),
    Sketcher.Constraint("Coincident", 2, 2, 3, 1),
    Sketcher.Constraint("Coincident", 3, 2, 0, 1),
    Sketcher.Constraint("Horizontal", 0),
    Sketcher.Constraint("Vertical", 1),
    Sketcher.Constraint("Horizontal", 2),
    Sketcher.Constraint("Vertical", 3),
    Sketcher.Constraint("PointOnObject", 0, 2, -2),
    Sketcher.Constraint("DistanceY", 1, 1, 1, 2, 4.0),
    Sketcher.Constraint("DistanceX", 0, 2, 0, 1, 6.5),
    Sketcher.Constraint("DistanceY", 0, 2, -1, 1, 42.5),
])
sketch15.setExpression("Constraints[9]", "Params.sketch15_height")
sketch15.setExpression("Constraints[10]", "Params.sketch15_width")
pad6 = body.newObject("PartDesign::Pad", "Pad005")
pad6.Profile = sketch15
pad6.setExpression("Length", "Params.pad6_length")
pad6.Reversed = True
doc.recompute()

fillet2 = body.newObject("PartDesign::Fillet", "Fillet001")
fillet2.Base = (pad6, edges_at(pad6, [(41.883, 6.5, -40.849), (33.442, 6.5, -41.599), (25, 6.5, -40.849)]))
fillet2.setExpression("Radius", "Params.fillet2_radius")

sketch16 = body.newObject("Sketcher::SketchObject", "Sketch015")
sketch16.AttachmentSupport = (doc.getObject("XZ_Plane"), [""])
sketch16.MapMode = "FlatFace"
sketch16.AttachmentOffset = App.Placement(V(0, 0, -6.5), App.Rotation())
sketch16.addGeometry([
    Part.LineSegment(V(-16, -42, 0), V(-16, 42, 0)),
    Part.LineSegment(V(-16, 42, 0), V(16, 42, 0)),
    Part.LineSegment(V(16, 42, 0), V(16, -42, 0)),
    Part.LineSegment(V(16, -42, 0), V(-16, -42, 0)),
], False)
sketch16.addConstraint([
    Sketcher.Constraint("Coincident", 0, 2, 1, 1),
    Sketcher.Constraint("Coincident", 1, 2, 2, 1),
    Sketcher.Constraint("Coincident", 2, 2, 3, 1),
    Sketcher.Constraint("Coincident", 3, 2, 0, 1),
    Sketcher.Constraint("Vertical", 0),
    Sketcher.Constraint("Horizontal", 1),
    Sketcher.Constraint("Vertical", 2),
    Sketcher.Constraint("Horizontal", 3),
    Sketcher.Constraint("Symmetric", 0, 2, 2, 2, -1, 1),
    Sketcher.Constraint("DistanceX", 1, 1, 1, 2, 32.0),
    Sketcher.Constraint("DistanceY", 0, 1, 0, 2, 85.0),
])
sketch16.setExpression("Constraints[9]", "Params.sketch16_width")
sketch16.setExpression("Constraints[10]", "Params.sketch16_height")
pocket5 = body.newObject("PartDesign::Pocket", "Pocket004")
pocket5.Profile = sketch16
pocket5.setExpression("Length", "Params.pocket5_length")
pocket5.Reversed = True

sketch17 = body.newObject("Sketcher::SketchObject", "Sketch016")
sketch17.AttachmentSupport = (doc.getObject("XY_Plane"), [""])
sketch17.MapMode = "FlatFace"
sketch17.AttachmentOffset = App.Placement(V(0, 0, -40.099), App.Rotation())
sketch17.addGeometry([
    Part.Circle(V(28.1, 21.8, 0), V(0, 0, 1), 1.2),
    Part.Circle(V(37.6, 21.8, 0), V(0, 0, 1), 1.2),
], False)
sketch17.addConstraint([
    Sketcher.Constraint("Equal", 0, 1),
    Sketcher.Constraint("Horizontal", 0, 3, 1, 3),
    Sketcher.Constraint("Diameter", 0, 2.5),
    Sketcher.Constraint("DistanceX", 0, 3, 1, 3, 9.5),
    Sketcher.Constraint("DistanceX", -1, 1, 0, 3, 28.15),
    Sketcher.Constraint("DistanceY", -1, 1, 0, 3, 21.825324),
])
sketch17.setExpression("Constraints[2]", "Params.sketch17_diameter")
doc.recompute()
hole6 = body.newObject("PartDesign::Hole", "Hole005")
hole6.Profile = sketch17
hole6.ThreadType = "None"
hole6.setExpression("Diameter", "Params.hole6_diameter")
hole6.DepthType = "Dimension"
hole6.setExpression("Depth", "Params.hole6_depth")
hole6.DrillPoint = "Flat"
hole6.HoleCutType = "Countersink"
hole6.setExpression("HoleCutDiameter", "Params.hole6_csink_diameter")
hole6.HoleCutCountersinkAngle = 90

sketch18 = body.newObject("Sketcher::SketchObject", "Sketch017")
sketch18.AttachmentSupport = (doc.getObject("XY_Plane"), [""])
sketch18.MapMode = "FlatFace"
sketch18.AttachmentOffset = App.Placement(V(0, 0, 40.099), App.Rotation())
sketch18.addGeometry([
    Part.Circle(V(28.1, 21.8, 0), V(0, 0, 1), 1.2),
    Part.Circle(V(37.6, 21.8, 0), V(0, 0, 1), 1.2),
    Part.Circle(V(-28.1, 21.8, 0), V(0, 0, 1), 1.2),
    Part.Circle(V(-37.6, 21.8, 0), V(0, 0, 1), 1.2),
], False)
sketch18.addConstraint([
    Sketcher.Constraint("Equal", 0, 1),
    Sketcher.Constraint("Equal", 1, 2),
    Sketcher.Constraint("Equal", 2, 3),
    Sketcher.Constraint("Symmetric", 0, 3, 2, 3, -2),
    Sketcher.Constraint("Symmetric", 1, 3, 3, 3, -2),
    Sketcher.Constraint("Horizontal", 0, 3, 1, 3),
    Sketcher.Constraint("Diameter", 0, 2.5),
    Sketcher.Constraint("DistanceX", 0, 3, 1, 3, 9.5),
    Sketcher.Constraint("DistanceX", 2, 3, 0, 3, 56.3),
    Sketcher.Constraint("DistanceY", -1, 1, 0, 3, 21.825324),
])
sketch18.setExpression("Constraints[6]", "Params.sketch18_diameter")
doc.recompute()
hole7 = body.newObject("PartDesign::Hole", "Hole006")
hole7.Profile = sketch18
hole7.ThreadType = "None"
hole7.setExpression("Diameter", "Params.hole7_diameter")
hole7.DepthType = "Dimension"
hole7.setExpression("Depth", "Params.hole7_depth")
hole7.DrillPoint = "Flat"
hole7.HoleCutType = "Countersink"
hole7.setExpression("HoleCutDiameter", "Params.hole7_csink_diameter")
hole7.HoleCutCountersinkAngle = 90
hole7.Reversed = True

sketch19 = body.newObject("Sketcher::SketchObject", "Sketch018")
sketch19.AttachmentSupport = (doc.getObject("XZ_Plane"), [""])
sketch19.MapMode = "FlatFace"
sketch19.AttachmentOffset = App.Placement(V(0, 0, -6.5), App.Rotation())
sketch19.addGeometry([
    Part.LineSegment(V(-42, -40, 0), V(-42, 40, 0)),
    Part.LineSegment(V(-42, 40, 0), V(42, 40, 0)),
    Part.LineSegment(V(42, 40, 0), V(42, -40, 0)),
    Part.LineSegment(V(42, -40, 0), V(-42, -40, 0)),
], False)
sketch19.addConstraint([
    Sketcher.Constraint("Coincident", 0, 2, 1, 1),
    Sketcher.Constraint("Coincident", 1, 2, 2, 1),
    Sketcher.Constraint("Coincident", 2, 2, 3, 1),
    Sketcher.Constraint("Coincident", 3, 2, 0, 1),
    Sketcher.Constraint("Vertical", 0),
    Sketcher.Constraint("Horizontal", 1),
    Sketcher.Constraint("Vertical", 2),
    Sketcher.Constraint("Horizontal", 3),
    Sketcher.Constraint("Symmetric", 0, 2, 2, 2, -1, 1),
    Sketcher.Constraint("DistanceX", 1, 1, 1, 2, 85.0),
    Sketcher.Constraint("DistanceY", 0, 1, 0, 2, 80.198),
])
sketch19.setExpression("Constraints[9]", "Params.sketch19_width")
pocket6 = body.newObject("PartDesign::Pocket", "Pocket005")
pocket6.Profile = sketch19
pocket6.setExpression("Length", "Params.pocket6_length")
pocket6.Reversed = True

sketch20 = body.newObject("Sketcher::SketchObject", "Sketch019")
sketch20.AttachmentSupport = (doc.getObject("XZ_Plane"), [""])
sketch20.MapMode = "FlatFace"
sketch20.addGeometry([
    Part.LineSegment(V(-42, 42, 0), V(-42, -42, 0)),
    Part.LineSegment(V(-42, -42, 0), V(42, -42, 0)),
    Part.LineSegment(V(42, -42, 0), V(42, 42, 0)),
    Part.LineSegment(V(42, 42, 0), V(-42, 42, 0)),
], False)
sketch20.addConstraint([
    Sketcher.Constraint("Coincident", 0, 2, 1, 1),
    Sketcher.Constraint("Coincident", 1, 2, 2, 1),
    Sketcher.Constraint("Coincident", 2, 2, 3, 1),
    Sketcher.Constraint("Coincident", 3, 2, 0, 1),
    Sketcher.Constraint("Vertical", 0),
    Sketcher.Constraint("Horizontal", 1),
    Sketcher.Constraint("Vertical", 2),
    Sketcher.Constraint("Horizontal", 3),
    Sketcher.Constraint("Symmetric", 0, 2, 2, 2, -1, 1),
    Sketcher.Constraint("Equal", 3, 0),
    Sketcher.Constraint("DistanceX", 1, 1, 1, 2, 85.0),
])
sketch20.setExpression("Constraints[10]", "Params.sketch20_width")
pocket7 = body.newObject("PartDesign::Pocket", "Pocket006")
pocket7.Profile = sketch20
pocket7.setExpression("Length", "Params.pocket7_length")

sketch21 = body.newObject("Sketcher::SketchObject", "Sketch020")
sketch21.AttachmentSupport = (doc.getObject("XZ_Plane"), [""])
sketch21.MapMode = "FlatFace"
sketch21.AttachmentOffset = App.Placement(V(0, 0, -6.5), App.Rotation())
sketch21.addGeometry([
    Part.LineSegment(V(-21, -42, 0), V(-21, 42, 0)),
    Part.LineSegment(V(-21, 42, 0), V(21, 42, 0)),
    Part.LineSegment(V(21, 42, 0), V(21, -42, 0)),
    Part.LineSegment(V(21, -42, 0), V(-21, -42, 0)),
], False)
sketch21.addConstraint([
    Sketcher.Constraint("Coincident", 0, 2, 1, 1),
    Sketcher.Constraint("Coincident", 1, 2, 2, 1),
    Sketcher.Constraint("Coincident", 2, 2, 3, 1),
    Sketcher.Constraint("Coincident", 3, 2, 0, 1),
    Sketcher.Constraint("Vertical", 0),
    Sketcher.Constraint("Horizontal", 1),
    Sketcher.Constraint("Vertical", 2),
    Sketcher.Constraint("Horizontal", 3),
    Sketcher.Constraint("Symmetric", 0, 2, 2, 2, -1, 1),
    Sketcher.Constraint("DistanceX", 1, 1, 1, 2, 42.0),
    Sketcher.Constraint("DistanceY", 0, 1, 0, 2, 85.0),
])
sketch21.setExpression("Constraints[9]", "Params.sketch21_width")
sketch21.setExpression("Constraints[10]", "Params.sketch21_height")
pocket8 = body.newObject("PartDesign::Pocket", "Pocket007")
pocket8.Profile = sketch21
pocket8.setExpression("Length", "Params.pocket8_length")
pocket8.Reversed = True

doc.recompute()
